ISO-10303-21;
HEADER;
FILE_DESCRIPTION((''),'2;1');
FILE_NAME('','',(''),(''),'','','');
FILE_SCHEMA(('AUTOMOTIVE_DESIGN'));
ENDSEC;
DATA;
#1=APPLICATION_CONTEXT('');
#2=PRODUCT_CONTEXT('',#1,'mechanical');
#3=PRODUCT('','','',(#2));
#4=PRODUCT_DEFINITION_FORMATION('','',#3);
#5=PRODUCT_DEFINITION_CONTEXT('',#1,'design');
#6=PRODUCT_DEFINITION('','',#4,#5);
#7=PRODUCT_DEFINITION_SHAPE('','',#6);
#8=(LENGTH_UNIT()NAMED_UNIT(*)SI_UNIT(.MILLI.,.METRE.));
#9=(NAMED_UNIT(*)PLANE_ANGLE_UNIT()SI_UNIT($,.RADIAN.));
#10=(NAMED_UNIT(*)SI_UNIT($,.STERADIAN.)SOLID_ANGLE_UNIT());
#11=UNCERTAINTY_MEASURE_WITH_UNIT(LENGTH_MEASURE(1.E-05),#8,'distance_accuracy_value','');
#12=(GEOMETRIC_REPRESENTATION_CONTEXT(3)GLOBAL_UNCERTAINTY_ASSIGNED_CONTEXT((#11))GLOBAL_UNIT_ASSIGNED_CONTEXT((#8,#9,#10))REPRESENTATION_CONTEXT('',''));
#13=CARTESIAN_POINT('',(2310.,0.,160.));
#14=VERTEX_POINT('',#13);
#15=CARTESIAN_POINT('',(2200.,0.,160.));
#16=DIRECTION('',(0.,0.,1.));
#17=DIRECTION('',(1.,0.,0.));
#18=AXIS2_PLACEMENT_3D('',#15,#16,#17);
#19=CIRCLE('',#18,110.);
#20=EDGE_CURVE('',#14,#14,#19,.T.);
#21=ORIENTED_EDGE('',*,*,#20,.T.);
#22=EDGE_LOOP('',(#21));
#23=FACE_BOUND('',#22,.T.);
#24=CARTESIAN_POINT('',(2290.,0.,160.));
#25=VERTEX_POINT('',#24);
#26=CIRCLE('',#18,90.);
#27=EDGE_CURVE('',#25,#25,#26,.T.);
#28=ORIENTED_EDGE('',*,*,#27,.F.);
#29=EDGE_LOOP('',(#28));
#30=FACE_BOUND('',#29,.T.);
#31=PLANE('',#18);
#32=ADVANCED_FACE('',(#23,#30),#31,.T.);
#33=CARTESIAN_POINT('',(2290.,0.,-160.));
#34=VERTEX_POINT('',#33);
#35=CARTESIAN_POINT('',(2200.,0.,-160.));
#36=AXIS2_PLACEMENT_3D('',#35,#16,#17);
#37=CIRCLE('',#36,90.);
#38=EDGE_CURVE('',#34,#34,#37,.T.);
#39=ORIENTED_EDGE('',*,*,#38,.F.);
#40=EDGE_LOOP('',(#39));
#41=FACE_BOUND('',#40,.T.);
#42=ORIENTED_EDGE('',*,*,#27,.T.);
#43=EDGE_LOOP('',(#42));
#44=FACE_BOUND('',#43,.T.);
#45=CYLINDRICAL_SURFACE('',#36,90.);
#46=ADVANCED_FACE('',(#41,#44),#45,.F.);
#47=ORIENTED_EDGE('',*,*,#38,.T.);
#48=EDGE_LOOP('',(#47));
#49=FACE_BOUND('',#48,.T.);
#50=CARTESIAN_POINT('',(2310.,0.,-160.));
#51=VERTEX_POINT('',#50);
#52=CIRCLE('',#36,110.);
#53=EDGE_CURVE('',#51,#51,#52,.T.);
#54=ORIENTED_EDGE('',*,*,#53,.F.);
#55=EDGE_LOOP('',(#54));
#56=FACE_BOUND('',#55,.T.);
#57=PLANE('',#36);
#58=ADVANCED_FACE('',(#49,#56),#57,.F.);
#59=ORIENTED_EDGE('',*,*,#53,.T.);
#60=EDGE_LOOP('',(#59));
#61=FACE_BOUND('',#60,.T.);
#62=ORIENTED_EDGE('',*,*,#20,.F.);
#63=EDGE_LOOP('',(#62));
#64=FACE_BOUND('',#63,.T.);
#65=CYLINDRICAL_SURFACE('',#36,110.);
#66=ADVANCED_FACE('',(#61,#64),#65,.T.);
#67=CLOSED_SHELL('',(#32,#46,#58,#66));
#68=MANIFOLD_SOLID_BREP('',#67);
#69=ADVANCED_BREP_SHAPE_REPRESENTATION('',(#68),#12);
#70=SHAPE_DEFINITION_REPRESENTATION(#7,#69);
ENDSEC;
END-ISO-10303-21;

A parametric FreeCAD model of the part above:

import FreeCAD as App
import Part
import Sketcher

V = App.Vector
Q = App.Units.Quantity

doc = App.newDocument("Part")
body = doc.addObject("PartDesign::Body", "Body")

sketch1 = body.newObject("Sketcher::SketchObject", "Sketch")
sketch1.AttachmentSupport = (doc.getObject("XY_Plane"), [""])
sketch1.MapMode = "FlatFace"
sketch1.addGeometry([
    Part.Circle(V(2200, 0, 0), V(0, 0, 1), 110),
    Part.Circle(V(2200, 0, 0), V(0, 0, 1), 90),
], False)
sketch1.addConstraint([
    Sketcher.Constraint("Coincident", 1, 3, 0, 3),
    Sketcher.Constraint("PointOnObject", 0, 3, -1),
    Sketcher.Constraint("Diameter", 0, Q("220 mm")),
    Sketcher.Constraint("Diameter", 1, Q("180 mm")),
    Sketcher.Constraint("DistanceX", -1, 1, 0, 3, Q("2200 mm")),
])
pad1 = body.newObject("PartDesign::Pad", "Pad")
pad1.Profile = sketch1
pad1.Type = "TwoLengths"
pad1.Length = 160
pad1.Length2 = 160

doc.recompute()
